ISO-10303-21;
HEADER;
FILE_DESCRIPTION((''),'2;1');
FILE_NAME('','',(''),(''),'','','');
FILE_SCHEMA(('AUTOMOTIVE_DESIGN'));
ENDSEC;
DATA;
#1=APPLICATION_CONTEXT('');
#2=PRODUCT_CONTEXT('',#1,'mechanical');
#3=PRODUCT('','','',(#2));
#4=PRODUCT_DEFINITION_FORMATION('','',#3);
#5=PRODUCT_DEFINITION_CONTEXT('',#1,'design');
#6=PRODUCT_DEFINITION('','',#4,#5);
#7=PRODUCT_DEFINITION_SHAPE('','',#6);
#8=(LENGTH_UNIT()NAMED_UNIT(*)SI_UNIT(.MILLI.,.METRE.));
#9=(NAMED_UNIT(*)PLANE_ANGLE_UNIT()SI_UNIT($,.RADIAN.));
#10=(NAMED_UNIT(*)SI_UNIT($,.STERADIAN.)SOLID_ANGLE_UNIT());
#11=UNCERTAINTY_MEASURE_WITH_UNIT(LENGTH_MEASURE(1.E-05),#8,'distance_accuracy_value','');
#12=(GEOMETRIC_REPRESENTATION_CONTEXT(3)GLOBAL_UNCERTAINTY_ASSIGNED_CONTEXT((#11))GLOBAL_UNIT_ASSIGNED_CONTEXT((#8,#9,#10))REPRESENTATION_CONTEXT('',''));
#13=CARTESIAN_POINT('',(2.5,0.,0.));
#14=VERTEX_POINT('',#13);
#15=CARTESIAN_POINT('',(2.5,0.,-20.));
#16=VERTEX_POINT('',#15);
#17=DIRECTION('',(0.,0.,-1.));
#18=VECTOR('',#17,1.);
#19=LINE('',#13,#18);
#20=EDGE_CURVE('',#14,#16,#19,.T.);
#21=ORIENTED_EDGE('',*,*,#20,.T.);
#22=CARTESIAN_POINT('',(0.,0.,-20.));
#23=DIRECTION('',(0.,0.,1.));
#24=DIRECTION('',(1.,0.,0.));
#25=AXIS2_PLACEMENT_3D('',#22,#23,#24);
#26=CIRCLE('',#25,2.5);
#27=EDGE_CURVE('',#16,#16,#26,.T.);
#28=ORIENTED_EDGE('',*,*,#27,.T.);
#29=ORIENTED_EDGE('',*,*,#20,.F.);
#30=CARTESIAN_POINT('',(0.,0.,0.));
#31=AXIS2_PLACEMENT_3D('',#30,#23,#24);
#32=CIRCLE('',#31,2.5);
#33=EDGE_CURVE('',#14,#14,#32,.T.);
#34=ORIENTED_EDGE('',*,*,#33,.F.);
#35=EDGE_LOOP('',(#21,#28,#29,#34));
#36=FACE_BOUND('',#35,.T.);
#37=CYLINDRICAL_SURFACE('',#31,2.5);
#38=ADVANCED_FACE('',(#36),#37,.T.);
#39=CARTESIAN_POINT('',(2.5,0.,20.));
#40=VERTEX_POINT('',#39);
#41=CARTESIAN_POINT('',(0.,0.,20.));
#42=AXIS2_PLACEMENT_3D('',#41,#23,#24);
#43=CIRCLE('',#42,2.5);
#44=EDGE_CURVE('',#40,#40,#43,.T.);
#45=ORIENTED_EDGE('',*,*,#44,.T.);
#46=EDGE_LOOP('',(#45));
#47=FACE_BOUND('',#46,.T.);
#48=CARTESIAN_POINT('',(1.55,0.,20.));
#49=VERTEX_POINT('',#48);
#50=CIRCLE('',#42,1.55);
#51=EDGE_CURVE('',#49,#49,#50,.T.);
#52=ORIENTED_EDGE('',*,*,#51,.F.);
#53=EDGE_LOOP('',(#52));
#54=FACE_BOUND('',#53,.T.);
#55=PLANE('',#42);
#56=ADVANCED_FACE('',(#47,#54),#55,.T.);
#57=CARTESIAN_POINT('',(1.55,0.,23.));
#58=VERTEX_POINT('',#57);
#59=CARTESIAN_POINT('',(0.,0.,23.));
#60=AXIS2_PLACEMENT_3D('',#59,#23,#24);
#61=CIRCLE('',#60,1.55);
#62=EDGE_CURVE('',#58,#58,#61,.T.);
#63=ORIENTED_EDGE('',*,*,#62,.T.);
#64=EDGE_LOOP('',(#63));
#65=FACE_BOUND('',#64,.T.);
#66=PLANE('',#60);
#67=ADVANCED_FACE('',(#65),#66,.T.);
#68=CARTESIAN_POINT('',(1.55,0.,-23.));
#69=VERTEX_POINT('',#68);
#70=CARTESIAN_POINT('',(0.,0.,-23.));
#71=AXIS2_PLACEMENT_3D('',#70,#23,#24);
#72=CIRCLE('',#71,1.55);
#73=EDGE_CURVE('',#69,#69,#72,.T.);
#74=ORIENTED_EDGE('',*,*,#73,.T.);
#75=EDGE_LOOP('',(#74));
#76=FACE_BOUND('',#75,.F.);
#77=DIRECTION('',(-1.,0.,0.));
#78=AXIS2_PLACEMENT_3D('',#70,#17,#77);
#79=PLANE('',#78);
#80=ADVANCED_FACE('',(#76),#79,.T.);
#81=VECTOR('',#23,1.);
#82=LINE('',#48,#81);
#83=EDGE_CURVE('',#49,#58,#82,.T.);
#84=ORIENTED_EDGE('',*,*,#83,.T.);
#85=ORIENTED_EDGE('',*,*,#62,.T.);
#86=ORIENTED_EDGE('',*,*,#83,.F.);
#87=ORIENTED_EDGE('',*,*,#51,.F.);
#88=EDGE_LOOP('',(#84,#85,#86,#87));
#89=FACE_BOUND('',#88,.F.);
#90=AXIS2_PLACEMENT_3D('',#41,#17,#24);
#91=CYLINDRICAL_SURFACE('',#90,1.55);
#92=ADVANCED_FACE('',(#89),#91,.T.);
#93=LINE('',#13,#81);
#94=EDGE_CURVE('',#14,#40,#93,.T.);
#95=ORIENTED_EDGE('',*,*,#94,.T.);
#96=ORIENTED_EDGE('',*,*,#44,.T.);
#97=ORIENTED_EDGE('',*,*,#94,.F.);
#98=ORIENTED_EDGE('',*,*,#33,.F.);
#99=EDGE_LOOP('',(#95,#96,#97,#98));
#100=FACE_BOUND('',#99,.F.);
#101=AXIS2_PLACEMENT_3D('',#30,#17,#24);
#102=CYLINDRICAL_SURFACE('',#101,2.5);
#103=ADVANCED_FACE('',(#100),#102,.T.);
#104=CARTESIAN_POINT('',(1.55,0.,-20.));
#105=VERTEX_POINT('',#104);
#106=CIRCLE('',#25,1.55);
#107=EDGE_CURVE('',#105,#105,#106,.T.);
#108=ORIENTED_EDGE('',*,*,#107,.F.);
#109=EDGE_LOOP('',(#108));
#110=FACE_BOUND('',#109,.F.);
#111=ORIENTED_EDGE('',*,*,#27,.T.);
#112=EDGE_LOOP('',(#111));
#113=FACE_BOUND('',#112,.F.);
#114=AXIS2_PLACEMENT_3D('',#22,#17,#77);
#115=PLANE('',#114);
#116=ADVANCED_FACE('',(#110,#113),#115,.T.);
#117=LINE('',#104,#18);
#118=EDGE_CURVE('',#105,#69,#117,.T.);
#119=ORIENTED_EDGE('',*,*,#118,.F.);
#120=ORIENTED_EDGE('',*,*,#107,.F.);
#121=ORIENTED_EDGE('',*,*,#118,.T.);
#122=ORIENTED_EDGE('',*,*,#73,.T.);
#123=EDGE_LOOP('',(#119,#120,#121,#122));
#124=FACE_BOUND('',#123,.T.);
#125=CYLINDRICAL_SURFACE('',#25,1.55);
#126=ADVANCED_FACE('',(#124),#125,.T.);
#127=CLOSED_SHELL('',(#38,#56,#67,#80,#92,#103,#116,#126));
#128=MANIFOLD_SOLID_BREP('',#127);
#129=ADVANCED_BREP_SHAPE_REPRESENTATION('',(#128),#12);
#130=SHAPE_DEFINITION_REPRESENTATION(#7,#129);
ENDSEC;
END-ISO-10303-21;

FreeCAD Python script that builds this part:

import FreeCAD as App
import Part
import Sketcher
from FreeCAD import Vector

doc = App.newDocument("Part")
params = doc.addObject("Spreadsheet::Sheet", "Params")
for row, (alias, value) in enumerate([
    ("sketch1_diameter", "5 mm"),
    ("pad1_length", "20 mm"),
    ("sketch2_diameter", "3.1 mm"),
    ("pad2_length", "3 mm"),
], start=1):
    params.set(f"A{row}", alias)
    params.set(f"B{row}", "=" + value)
    params.setAlias(f"B{row}", alias)

body = doc.addObject("PartDesign::Body", "Body")

# Sketch on XY plane
sketch1 = body.newObject("Sketcher::SketchObject", "Sketch")
sketch1.AttachmentSupport = (doc.getObject("XY_Plane"), [""])
sketch1.MapMode = "FlatFace"
sketch1.addGeometry(Part.Circle(Vector(0, 0, 0), Vector(0, 0, 1), 2.5), False)
sketch1.addConstraint([
    Sketcher.Constraint("Coincident", 0, 3, -1, 1),
    Sketcher.Constraint("Diameter", 0, 5.0),
])
sketch1.setExpression("Constraints[1]", "Params.sketch1_diameter")
pad1 = body.newObject("PartDesign::Pad", "Pad")
pad1.Profile = sketch1
pad1.setExpression("Length", "Params.pad1_length")

# Sketch on XY plane
sketch2 = body.newObject("Sketcher::SketchObject", "Sketch001")
sketch2.AttachmentSupport = (doc.getObject("XY_Plane"), [""])
sketch2.MapMode = "FlatFace"
sketch2.AttachmentOffset = App.Placement(Vector(0, 0, 20), App.Rotation())
sketch2.addGeometry(Part.Circle(Vector(0, 0, 0), Vector(0, 0, 1), 1.6), False)
sketch2.addConstraint([
    Sketcher.Constraint("Coincident", 0, 3, -1, 1),
    Sketcher.Constraint("Diameter", 0, 3.1),
])
sketch2.setExpression("Constraints[1]", "Params.sketch2_diameter")
pad2 = body.newObject("PartDesign::Pad", "Pad001")
pad2.Profile = sketch2
pad2.setExpression("Length", "Params.pad2_length")
doc.recompute()

mirrored = body.newObject("PartDesign::Mirrored", "Mirrored")
mirrored.Originals = [pad1, pad2]
mirrored.MirrorPlane = (doc.getObject("XY_Plane"), [""])
body.Tip = mirrored

doc.recompute()
